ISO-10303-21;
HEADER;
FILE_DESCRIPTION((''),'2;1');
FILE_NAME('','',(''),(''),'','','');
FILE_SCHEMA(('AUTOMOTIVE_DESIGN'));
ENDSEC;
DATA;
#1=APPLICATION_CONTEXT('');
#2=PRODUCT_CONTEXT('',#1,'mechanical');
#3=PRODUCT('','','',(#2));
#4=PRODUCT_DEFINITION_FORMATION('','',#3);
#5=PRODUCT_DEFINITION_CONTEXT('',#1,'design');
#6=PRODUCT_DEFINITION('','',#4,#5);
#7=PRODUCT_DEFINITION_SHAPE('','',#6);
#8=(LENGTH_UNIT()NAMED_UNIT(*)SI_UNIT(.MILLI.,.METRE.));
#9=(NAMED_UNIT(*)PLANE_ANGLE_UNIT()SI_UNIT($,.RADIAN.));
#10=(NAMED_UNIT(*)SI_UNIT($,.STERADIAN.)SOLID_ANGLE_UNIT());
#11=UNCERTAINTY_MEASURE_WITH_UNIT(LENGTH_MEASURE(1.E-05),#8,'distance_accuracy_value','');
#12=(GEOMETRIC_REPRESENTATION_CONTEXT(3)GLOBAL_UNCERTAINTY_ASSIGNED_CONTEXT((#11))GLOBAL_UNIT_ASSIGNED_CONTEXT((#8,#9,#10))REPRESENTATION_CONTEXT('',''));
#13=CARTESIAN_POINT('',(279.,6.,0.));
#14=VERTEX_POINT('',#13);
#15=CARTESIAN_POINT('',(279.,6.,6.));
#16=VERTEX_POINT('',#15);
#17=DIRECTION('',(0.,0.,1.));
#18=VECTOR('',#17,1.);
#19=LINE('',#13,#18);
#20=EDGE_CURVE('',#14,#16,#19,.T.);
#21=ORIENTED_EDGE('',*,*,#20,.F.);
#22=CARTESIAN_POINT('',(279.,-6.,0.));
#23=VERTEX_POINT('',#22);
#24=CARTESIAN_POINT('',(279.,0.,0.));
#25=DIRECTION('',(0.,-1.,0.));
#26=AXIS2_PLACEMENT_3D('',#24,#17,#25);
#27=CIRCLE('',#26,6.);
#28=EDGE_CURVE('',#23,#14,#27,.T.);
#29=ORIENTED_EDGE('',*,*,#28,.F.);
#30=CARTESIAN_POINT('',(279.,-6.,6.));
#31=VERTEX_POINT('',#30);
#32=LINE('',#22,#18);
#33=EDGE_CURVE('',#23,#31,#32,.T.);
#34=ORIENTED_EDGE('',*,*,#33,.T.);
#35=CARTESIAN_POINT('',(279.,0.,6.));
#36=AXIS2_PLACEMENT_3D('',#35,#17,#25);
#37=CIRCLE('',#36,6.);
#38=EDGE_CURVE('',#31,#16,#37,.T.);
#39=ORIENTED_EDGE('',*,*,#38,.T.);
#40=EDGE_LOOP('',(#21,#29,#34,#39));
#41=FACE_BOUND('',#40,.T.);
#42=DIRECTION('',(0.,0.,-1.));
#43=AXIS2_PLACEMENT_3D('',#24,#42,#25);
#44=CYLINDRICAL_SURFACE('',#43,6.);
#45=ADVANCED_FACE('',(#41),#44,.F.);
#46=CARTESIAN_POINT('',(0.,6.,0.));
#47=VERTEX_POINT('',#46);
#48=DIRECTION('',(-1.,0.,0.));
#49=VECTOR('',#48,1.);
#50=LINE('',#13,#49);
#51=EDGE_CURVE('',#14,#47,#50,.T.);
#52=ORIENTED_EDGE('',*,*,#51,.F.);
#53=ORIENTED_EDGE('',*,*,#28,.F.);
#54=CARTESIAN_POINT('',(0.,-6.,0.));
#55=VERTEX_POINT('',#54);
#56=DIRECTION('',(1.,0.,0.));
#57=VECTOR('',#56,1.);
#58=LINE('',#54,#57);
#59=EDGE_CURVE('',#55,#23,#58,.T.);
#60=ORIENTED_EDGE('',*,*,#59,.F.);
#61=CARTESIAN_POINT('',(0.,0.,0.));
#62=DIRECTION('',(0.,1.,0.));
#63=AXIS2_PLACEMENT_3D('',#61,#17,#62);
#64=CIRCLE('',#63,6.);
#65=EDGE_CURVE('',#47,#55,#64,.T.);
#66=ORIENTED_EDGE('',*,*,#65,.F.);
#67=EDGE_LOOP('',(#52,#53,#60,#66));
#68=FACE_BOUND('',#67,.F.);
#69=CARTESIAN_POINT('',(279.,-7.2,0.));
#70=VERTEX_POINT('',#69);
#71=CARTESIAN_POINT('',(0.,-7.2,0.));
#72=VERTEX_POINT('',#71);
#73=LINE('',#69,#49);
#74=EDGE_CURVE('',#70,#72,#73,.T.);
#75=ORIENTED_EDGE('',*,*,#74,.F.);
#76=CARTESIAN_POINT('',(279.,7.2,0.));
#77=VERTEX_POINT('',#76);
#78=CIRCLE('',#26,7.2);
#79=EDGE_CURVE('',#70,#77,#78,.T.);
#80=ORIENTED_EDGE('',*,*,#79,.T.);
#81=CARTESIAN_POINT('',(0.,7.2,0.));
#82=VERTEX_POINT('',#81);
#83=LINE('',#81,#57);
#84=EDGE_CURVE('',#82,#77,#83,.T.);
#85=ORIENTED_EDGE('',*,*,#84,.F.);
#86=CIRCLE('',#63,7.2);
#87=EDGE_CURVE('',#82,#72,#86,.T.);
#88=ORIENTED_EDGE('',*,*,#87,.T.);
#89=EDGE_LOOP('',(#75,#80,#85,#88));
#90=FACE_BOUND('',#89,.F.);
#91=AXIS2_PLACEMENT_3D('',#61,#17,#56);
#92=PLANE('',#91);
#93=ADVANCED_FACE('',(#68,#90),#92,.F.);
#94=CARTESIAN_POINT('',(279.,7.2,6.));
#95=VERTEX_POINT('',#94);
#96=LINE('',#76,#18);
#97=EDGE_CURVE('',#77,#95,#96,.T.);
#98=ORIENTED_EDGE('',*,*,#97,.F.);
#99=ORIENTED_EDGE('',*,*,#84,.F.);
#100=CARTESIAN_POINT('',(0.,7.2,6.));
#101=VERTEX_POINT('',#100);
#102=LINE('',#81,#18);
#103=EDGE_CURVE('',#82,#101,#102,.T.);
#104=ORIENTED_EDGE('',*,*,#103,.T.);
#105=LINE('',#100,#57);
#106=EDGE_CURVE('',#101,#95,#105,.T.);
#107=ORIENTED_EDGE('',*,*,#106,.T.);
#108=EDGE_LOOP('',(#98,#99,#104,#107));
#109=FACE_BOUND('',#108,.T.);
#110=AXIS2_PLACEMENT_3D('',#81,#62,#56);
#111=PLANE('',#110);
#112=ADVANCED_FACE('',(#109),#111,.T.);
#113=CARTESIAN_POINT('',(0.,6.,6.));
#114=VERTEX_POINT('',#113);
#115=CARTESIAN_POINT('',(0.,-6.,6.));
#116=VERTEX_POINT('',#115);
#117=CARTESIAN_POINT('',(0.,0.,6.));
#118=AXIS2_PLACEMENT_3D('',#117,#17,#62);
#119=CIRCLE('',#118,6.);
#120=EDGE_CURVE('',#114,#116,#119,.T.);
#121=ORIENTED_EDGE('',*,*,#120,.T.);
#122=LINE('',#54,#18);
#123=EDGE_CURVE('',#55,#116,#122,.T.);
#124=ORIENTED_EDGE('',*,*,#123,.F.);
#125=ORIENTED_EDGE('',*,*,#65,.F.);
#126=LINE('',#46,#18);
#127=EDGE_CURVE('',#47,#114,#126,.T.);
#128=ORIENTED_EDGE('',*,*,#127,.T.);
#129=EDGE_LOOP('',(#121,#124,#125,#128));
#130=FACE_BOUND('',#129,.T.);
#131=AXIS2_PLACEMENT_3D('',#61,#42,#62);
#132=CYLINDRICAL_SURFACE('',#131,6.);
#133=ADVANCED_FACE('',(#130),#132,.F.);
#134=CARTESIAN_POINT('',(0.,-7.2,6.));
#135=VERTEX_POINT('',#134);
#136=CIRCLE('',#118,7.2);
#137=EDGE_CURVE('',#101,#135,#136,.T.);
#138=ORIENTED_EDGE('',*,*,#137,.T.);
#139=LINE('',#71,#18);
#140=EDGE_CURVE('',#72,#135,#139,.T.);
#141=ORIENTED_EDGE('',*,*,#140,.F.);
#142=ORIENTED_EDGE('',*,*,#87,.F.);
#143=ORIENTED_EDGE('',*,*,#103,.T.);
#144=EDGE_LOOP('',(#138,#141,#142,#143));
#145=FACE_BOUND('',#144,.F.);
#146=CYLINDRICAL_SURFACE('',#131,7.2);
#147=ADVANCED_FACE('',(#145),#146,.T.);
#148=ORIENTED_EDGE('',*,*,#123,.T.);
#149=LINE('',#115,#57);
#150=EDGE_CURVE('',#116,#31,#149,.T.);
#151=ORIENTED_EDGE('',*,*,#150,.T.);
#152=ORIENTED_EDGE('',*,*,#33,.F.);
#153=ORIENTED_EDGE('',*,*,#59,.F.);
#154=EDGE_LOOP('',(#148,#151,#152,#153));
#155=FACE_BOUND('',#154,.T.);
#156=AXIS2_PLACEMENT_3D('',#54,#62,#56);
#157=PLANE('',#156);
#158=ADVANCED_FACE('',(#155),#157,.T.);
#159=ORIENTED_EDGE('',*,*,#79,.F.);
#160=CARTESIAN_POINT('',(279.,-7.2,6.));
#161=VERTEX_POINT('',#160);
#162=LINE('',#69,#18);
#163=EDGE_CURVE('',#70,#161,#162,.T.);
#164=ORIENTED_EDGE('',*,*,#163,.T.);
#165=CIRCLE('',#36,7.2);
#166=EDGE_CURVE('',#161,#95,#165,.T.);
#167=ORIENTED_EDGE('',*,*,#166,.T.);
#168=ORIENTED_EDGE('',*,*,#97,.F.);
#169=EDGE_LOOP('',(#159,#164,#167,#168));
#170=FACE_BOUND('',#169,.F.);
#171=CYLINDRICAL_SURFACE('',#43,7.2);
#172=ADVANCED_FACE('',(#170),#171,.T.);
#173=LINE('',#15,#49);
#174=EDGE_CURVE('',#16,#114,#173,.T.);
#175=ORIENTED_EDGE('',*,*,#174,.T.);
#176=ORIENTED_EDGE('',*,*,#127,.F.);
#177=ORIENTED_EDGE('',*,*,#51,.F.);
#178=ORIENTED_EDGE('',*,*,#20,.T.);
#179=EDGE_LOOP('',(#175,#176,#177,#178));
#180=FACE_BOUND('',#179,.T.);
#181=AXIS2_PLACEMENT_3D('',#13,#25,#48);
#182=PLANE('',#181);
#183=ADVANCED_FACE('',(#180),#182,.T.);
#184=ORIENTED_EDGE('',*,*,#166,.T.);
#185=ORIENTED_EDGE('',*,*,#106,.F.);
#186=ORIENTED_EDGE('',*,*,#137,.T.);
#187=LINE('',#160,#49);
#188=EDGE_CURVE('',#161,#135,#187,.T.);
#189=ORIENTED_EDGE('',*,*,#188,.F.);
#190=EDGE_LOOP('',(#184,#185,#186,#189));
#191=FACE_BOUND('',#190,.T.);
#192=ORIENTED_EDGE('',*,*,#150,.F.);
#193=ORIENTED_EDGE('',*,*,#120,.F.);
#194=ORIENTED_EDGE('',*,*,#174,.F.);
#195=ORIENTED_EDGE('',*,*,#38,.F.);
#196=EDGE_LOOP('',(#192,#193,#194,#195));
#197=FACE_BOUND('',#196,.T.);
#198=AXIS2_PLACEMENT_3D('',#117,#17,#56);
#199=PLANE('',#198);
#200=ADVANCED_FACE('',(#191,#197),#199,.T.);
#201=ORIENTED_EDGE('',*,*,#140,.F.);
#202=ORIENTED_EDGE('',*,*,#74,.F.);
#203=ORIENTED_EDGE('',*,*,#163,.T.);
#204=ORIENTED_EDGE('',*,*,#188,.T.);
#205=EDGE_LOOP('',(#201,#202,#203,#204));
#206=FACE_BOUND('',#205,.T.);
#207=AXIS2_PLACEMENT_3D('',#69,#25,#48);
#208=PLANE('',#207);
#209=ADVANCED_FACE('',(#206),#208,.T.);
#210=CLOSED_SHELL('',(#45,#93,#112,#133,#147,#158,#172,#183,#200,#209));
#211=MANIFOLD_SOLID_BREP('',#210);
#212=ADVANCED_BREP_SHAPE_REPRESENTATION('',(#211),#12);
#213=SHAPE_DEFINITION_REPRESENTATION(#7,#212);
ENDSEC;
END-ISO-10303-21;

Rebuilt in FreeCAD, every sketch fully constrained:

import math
import FreeCAD as App
import Part
import Sketcher
from FreeCAD import Vector

doc = App.newDocument("Part")
body = doc.addObject("PartDesign::Body", "Body")

# Sketch on XY plane
sketch1 = doc.addObject("Sketcher::SketchObject", "Sketch")
body.addObject(sketch1)
sketch1.AttachmentSupport = (doc.XY_Plane, [""])
sketch1.MapMode = "FlatFace"
sketch1.addGeometry([
    Part.LineSegment(Vector(279, 7.2, 0), Vector(0, 7.2, 0)),  # 0
    Part.ArcOfCircle(Part.Circle(Vector(0, 0, 0), Vector(0, 0, 1), 7.2), math.radians(90), math.radians(270)),  # 1
    Part.LineSegment(Vector(0, -7.2, 0), Vector(279, -7.2, 0)),  # 2
    Part.ArcOfCircle(Part.Circle(Vector(279, 0, 0), Vector(0, 0, 1), 7.2), math.radians(-90), math.radians(90)),  # 3
    Part.ArcOfCircle(Part.Circle(Vector(0, 0, 0), Vector(0, 0, 1), 6), math.radians(90), math.radians(270)),  # 4
    Part.LineSegment(Vector(0, 6, 0), Vector(279, 6, 0)),  # 5
    Part.ArcOfCircle(Part.Circle(Vector(279, 0, 0), Vector(0, 0, 1), 6), math.radians(-90), math.radians(90)),  # 6
    Part.LineSegment(Vector(279, -6, 0), Vector(0, -6, 0)),  # 7
], False)
sketch1.addConstraint([
    Sketcher.Constraint("Tangent", 0, 2, 1, 1),
    Sketcher.Constraint("Tangent", 1, 2, 2, 1),
    Sketcher.Constraint("Tangent", 2, 2, 3, 1),
    Sketcher.Constraint("Tangent", 3, 2, 0, 1),
    Sketcher.Constraint("Tangent", 4, 1, 5, 1),
    Sketcher.Constraint("Tangent", 5, 2, 6, 2),
    Sketcher.Constraint("Tangent", 6, 1, 7, 1),
    Sketcher.Constraint("Tangent", 7, 2, 4, 2),
    Sketcher.Constraint("Horizontal", 0),
    Sketcher.Constraint("Horizontal", 2),
    Sketcher.Constraint("Horizontal", 5),
    Sketcher.Constraint("Horizontal", 7),
    Sketcher.Constraint("Coincident", 1, 3, -1, 1),
    Sketcher.Constraint("Coincident", 4, 3, -1, 1),
    Sketcher.Constraint("Vertical", 6, 3, 2, 2),
    Sketcher.Constraint("Radius", 4, 6.0),
    Sketcher.Constraint("DistanceX", 0, 2, 0, 1, 279.0),
    Sketcher.Constraint("Radius", 1, 7.2),
])
pad1 = doc.addObject("PartDesign::Pad", "Pad")
body.addObject(pad1)
pad1.Profile = sketch1
pad1.Length = 6

doc.recompute()
